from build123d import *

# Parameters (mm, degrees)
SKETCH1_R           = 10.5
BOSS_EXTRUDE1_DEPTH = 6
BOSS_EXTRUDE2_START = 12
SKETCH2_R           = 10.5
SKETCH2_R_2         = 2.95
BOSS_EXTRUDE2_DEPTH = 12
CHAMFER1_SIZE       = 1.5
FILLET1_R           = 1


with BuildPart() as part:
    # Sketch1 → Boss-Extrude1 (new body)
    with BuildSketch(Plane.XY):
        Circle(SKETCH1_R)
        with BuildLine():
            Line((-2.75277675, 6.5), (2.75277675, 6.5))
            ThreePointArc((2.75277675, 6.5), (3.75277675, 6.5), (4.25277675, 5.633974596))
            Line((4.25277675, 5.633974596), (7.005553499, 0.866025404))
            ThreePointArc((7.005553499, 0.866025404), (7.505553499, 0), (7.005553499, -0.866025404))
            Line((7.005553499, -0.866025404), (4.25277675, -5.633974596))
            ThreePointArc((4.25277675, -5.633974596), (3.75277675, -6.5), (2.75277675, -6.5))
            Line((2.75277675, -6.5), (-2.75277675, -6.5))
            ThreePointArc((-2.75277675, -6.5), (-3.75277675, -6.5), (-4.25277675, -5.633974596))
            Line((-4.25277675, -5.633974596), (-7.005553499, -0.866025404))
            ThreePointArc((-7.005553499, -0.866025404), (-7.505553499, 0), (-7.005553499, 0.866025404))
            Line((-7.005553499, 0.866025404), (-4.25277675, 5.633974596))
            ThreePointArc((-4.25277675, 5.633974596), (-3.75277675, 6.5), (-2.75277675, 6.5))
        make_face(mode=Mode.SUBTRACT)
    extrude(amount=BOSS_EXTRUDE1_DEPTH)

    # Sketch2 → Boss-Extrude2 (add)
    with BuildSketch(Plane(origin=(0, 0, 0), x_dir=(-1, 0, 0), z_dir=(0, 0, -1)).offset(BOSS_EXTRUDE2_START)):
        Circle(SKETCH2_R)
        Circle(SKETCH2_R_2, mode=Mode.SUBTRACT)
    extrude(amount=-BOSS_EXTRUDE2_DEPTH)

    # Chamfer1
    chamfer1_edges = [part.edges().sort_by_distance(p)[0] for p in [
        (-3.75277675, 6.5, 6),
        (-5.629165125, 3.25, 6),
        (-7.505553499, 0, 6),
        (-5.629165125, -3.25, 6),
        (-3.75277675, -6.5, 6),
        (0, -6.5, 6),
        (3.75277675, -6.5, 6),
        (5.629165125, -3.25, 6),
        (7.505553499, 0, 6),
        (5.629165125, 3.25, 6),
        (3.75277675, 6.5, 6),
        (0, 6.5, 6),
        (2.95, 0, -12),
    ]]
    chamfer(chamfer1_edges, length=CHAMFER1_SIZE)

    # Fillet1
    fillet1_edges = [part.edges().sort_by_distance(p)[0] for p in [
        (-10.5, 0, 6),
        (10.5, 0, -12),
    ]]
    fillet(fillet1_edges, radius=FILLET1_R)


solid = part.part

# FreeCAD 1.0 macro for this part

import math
import FreeCAD as App
import Part
import Sketcher
Q = App.Units.Quantity


def edges_at(feature, points):
    """Names of the edges that pass closest to the given points."""
    edges = feature.Shape.Edges
    near = lambda p: min(range(len(edges)), key=lambda i: edges[i].distToShape(Part.Vertex(*p))[0])
    return sorted({f"Edge{near(p) + 1}" for p in points})

doc = App.newDocument("Part")
body = doc.addObject("PartDesign::Body", "Body")

# Sketch on XY plane
sketch1 = doc.addObject("Sketcher::SketchObject", "Sketch")
body.addObject(sketch1)
sketch1.AttachmentSupport = (doc.XY_Plane, [""])
sketch1.MapMode = "FlatFace"
sketch1.addGeometry(Part.Circle(App.Vector(0, 0, 0), App.Vector(0, 0, 1), 10.5), False)
sketch1.addGeometry(Part.ArcOfCircle(Part.Circle(App.Vector(-3.3, 5.6, 0), App.Vector(0, 0, 1), 1), math.radians(60), math.radians(180)), False)
sketch1.addGeometry(Part.LineSegment(App.Vector(-2.8, 6.5, 0), App.Vector(2.8, 6.5, 0)), False)
sketch1.addGeometry(Part.ArcOfCircle(Part.Circle(App.Vector(3.3, 5.6, 0), App.Vector(0, 0, 1), 1), math.radians(0), math.radians(120)), False)
sketch1.addGeometry(Part.LineSegment(App.Vector(4.3, 5.6, 0), App.Vector(7, 0.9, 0)), False)
sketch1.addGeometry(Part.ArcOfCircle(Part.Circle(App.Vector(6.5, 0, 0), App.Vector(0, 0, 1), 1), math.radians(-60), math.radians(60)), False)
sketch1.addGeometry(Part.LineSegment(App.Vector(7, -0.9, 0), App.Vector(4.3, -5.6, 0)), False)
sketch1.addGeometry(Part.ArcOfCircle(Part.Circle(App.Vector(3.3, -5.6, 0), App.Vector(0, 0, 1), 1), math.radians(-120), math.radians(0)), False)
sketch1.addGeometry(Part.LineSegment(App.Vector(2.8, -6.5, 0), App.Vector(-2.8, -6.5, 0)), False)
sketch1.addGeometry(Part.ArcOfCircle(Part.Circle(App.Vector(-3.3, -5.6, 0), App.Vector(0, 0, 1), 1), math.radians(180), math.radians(300)), False)
sketch1.addGeometry(Part.LineSegment(App.Vector(-4.3, -5.6, 0), App.Vector(-7, -0.9, 0)), False)
sketch1.addGeometry(Part.ArcOfCircle(Part.Circle(App.Vector(-6.5, 0, 0), App.Vector(0, 0, 1), 1), math.radians(120), math.radians(240)), False)
sketch1.addGeometry(Part.LineSegment(App.Vector(-7, 0.9, 0), App.Vector(-4.3, 5.6, 0)), False)
sketch1.addConstraint(Sketcher.Constraint("Coincident", 1, 1, 2, 1))
sketch1.addConstraint(Sketcher.Constraint("Coincident", 2, 2, 3, 2))
sketch1.addConstraint(Sketcher.Constraint("Coincident", 3, 1, 4, 1))
sketch1.addConstraint(Sketcher.Constraint("Coincident", 4, 2, 5, 2))
sketch1.addConstraint(Sketcher.Constraint("Coincident", 5, 1, 6, 1))
sketch1.addConstraint(Sketcher.Constraint("Coincident", 6, 2, 7, 2))
sketch1.addConstraint(Sketcher.Constraint("Coincident", 7, 1, 8, 1))
sketch1.addConstraint(Sketcher.Constraint("Coincident", 8, 2, 9, 2))
sketch1.addConstraint(Sketcher.Constraint("Coincident", 9, 1, 10, 1))
sketch1.addConstraint(Sketcher.Constraint("Coincident", 10, 2, 11, 2))
sketch1.addConstraint(Sketcher.Constraint("Coincident", 11, 1, 12, 1))
sketch1.addConstraint(Sketcher.Constraint("Coincident", 12, 2, 1, 2))
sketch1.addConstraint(Sketcher.Constraint("Horizontal", 2))
sketch1.addConstraint(Sketcher.Constraint("Horizontal", 8))
sketch1.addConstraint(Sketcher.Constraint("Coincident", 0, 3, -1, 1))
sketch1.addConstraint(Sketcher.Constraint("Equal", 1, 3))
sketch1.addConstraint(Sketcher.Constraint("Equal", 3, 5))
sketch1.addConstraint(Sketcher.Constraint("Equal", 5, 7))
sketch1.addConstraint(Sketcher.Constraint("Equal", 7, 9))
sketch1.addConstraint(Sketcher.Constraint("Equal", 9, 11))
sketch1.addConstraint(Sketcher.Constraint("Symmetric", 1, 3, 7, 3, -1, 1))
sketch1.addConstraint(Sketcher.Constraint("Symmetric", 3, 3, 9, 3, -1, 1))
sketch1.addConstraint(Sketcher.Constraint("Symmetric", 5, 3, 11, 3, -1, 1))
sketch1.addConstraint(Sketcher.Constraint("Symmetric", 1, 3, 3, 3, -2))
sketch1.addConstraint(Sketcher.Constraint("Symmetric", 5, 1, 10, 2, -2))
sketch1.addConstraint(Sketcher.Constraint("Parallel", 4, 10))
sketch1.addConstraint(Sketcher.Constraint("Parallel", 6, 12))
sketch1.addConstraint(Sketcher.Constraint("Horizontal", 1, 3, 3, 1))
sketch1.addConstraint(Sketcher.Constraint("Horizontal", 9, 3, 6, 2))
sketch1.addConstraint(Sketcher.Constraint("Horizontal", 6, 2, 9, 1))
sketch1.addConstraint(Sketcher.Constraint("Horizontal", 4, 2, 11, 1))
sketch1.addConstraint(Sketcher.Constraint("Vertical", 2, 2, 7, 1))
sketch1.addConstraint(Sketcher.Constraint("Diameter", 0, Q("21 mm")))
sketch1.addConstraint(Sketcher.Constraint("Radius", 1, Q("1 mm")))
sketch1.addConstraint(Sketcher.Constraint("Angle", 4, Q("-60 deg")))
sketch1.addConstraint(Sketcher.Constraint("DistanceY", -1, 1, 1, 1, Q("6.5 mm")))
sketch1.addConstraint(Sketcher.Constraint("DistanceX", 1, 3, 1, 1, Q("0.5 mm")))
sketch1.addConstraint(Sketcher.Constraint("DistanceX", 5, 3, 4, 2, Q("0.5 mm")))
sketch1.addConstraint(Sketcher.Constraint("DistanceX", 2, 1, 2, 2, Q("5.505554 mm")))
pad1 = doc.addObject("PartDesign::Pad", "Pad")
body.addObject(pad1)
pad1.Profile = sketch1
pad1.Length = 6

# Sketch on XY plane
sketch2 = doc.addObject("Sketcher::SketchObject", "Sketch001")
body.addObject(sketch2)
sketch2.AttachmentSupport = (doc.XY_Plane, [""])
sketch2.MapMode = "FlatFace"
sketch2.AttachmentOffset = App.Placement(App.Vector(0, 0, -12), App.Rotation())
sketch2.addGeometry(Part.Circle(App.Vector(0, 0, 0), App.Vector(0, 0, 1), 10.5), False)
sketch2.addGeometry(Part.Circle(App.Vector(0, 0, 0), App.Vector(0, 0, 1), 3), False)
sketch2.addConstraint(Sketcher.Constraint("Coincident", 0, 3, -1, 1))
sketch2.addConstraint(Sketcher.Constraint("Coincident", 1, 3, -1, 1))
sketch2.addConstraint(Sketcher.Constraint("Diameter", 0, Q("21 mm")))
sketch2.addConstraint(Sketcher.Constraint("Diameter", 1, Q("5.9 mm")))
pad2 = doc.addObject("PartDesign::Pad", "Pad001")
body.addObject(pad2)
pad2.Profile = sketch2
pad2.Length = 12
doc.recompute()

chamfer = doc.addObject("PartDesign::Chamfer", "Chamfer")
body.addObject(chamfer)
chamfer.Base = (pad2, edges_at(pad2, [
    (-3.753, 6.5, 6),
    (-5.629, 3.25, 6),
    (-7.506, 0, 6),
    (-5.629, -3.25, 6),
    (-3.753, -6.5, 6),
    (0, -6.5, 6),
    (3.753, -6.5, 6),
    (5.629, -3.25, 6),
    (7.506, 0, 6),
    (5.629, 3.25, 6),
    (3.753, 6.5, 6),
    (0, 6.5, 6),
    (2.95, 0, -12),
]))
chamfer.Size = 1.5
doc.recompute()

fillet = doc.addObject("PartDesign::Fillet", "Fillet")
body.addObject(fillet)
fillet.Base = (chamfer, edges_at(chamfer, [(-10.5, 0, 6), (10.5, 0, -12)]))
fillet.Radius = 1

doc.recompute()
